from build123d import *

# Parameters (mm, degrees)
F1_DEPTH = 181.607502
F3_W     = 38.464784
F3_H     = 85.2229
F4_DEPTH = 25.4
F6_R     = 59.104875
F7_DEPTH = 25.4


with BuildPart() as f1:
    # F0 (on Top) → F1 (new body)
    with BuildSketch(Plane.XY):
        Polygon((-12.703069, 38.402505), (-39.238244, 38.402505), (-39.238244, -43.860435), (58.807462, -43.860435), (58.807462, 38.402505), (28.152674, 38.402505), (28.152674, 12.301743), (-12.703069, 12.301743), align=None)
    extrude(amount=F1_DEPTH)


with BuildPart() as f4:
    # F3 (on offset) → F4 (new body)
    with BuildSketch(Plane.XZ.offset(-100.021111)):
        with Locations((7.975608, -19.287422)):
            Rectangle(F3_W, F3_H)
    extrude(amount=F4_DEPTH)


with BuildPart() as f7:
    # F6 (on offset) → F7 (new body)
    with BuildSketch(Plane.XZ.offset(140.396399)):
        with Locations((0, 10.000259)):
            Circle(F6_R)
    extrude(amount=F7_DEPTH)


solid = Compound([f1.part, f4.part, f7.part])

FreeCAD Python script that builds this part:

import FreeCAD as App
import Part
import Sketcher
from FreeCAD import Vector
Q = App.Units.Quantity


def add_polygon(sketch, points):
    """Adds a closed chain of lines whose ends are joined by coincident constraints."""
    first, n = sketch.GeometryCount, len(points)
    for a, b in zip(points, points[1:] + points[:1]):
        sketch.addGeometry(Part.LineSegment(App.Vector(*a, 0), App.Vector(*b, 0)), False)
    for i in range(n):
        sketch.addConstraint(Sketcher.Constraint("Coincident", first + i, 2, first + (i + 1) % n, 1))

doc = App.newDocument("Part")
params = doc.addObject("Spreadsheet::Sheet", "Params")
for row, (alias, value) in enumerate([
    ("pad1_length", "181.607502 mm"),
    ("pad2_length", "1 in"),
    ("pad3_length", "1 in"),
], start=1):
    params.set(f"A{row}", alias)
    params.set(f"B{row}", "=" + value)
    params.setAlias(f"B{row}", alias)

body = doc.addObject("PartDesign::Body", "Body")

sketch1 = doc.addObject("Sketcher::SketchObject", "Sketch")
body.addObject(sketch1)
sketch1.AttachmentSupport = (doc.XY_Plane, [""])
sketch1.MapMode = "FlatFace"
add_polygon(sketch1, [(-13, 38), (-39, 38), (-39, -44), (59, -44), (59, 38), (28, 38), (28, 12), (-13, 12)])
sketch1.addConstraint([
    Sketcher.Constraint("Horizontal", 0),
    Sketcher.Constraint("Vertical", 1),
    Sketcher.Constraint("Horizontal", 2),
    Sketcher.Constraint("Vertical", 3),
    Sketcher.Constraint("Horizontal", 4),
    Sketcher.Constraint("Vertical", 5),
    Sketcher.Constraint("Horizontal", 6),
    Sketcher.Constraint("Vertical", 7),
    Sketcher.Constraint("Horizontal", 0, 2, 3, 2),
    Sketcher.Constraint("DistanceX", 4, 2, 4, 1, Q("30.654788 mm")),
    Sketcher.Constraint("DistanceY", 1, 2, 1, 1, Q("82.26294 mm")),
    Sketcher.Constraint("DistanceY", 5, 2, 5, 1, Q("26.100762 mm")),
    Sketcher.Constraint("DistanceX", 0, 2, 0, 1, Q("26.535175 mm")),
    Sketcher.Constraint("DistanceX", 2, 1, 2, 2, Q("98.045706 mm")),
    Sketcher.Constraint("DistanceX", 6, 2, -1, 1, Q("12.703069 mm")),
    Sketcher.Constraint("DistanceY", -1, 1, 0, 2, Q("38.402505 mm")),
])
pad1 = doc.addObject("PartDesign::Pad", "Pad")
body.addObject(pad1)
pad1.Profile = sketch1
pad1.setExpression("Length", "Params.pad1_length")
body2 = doc.addObject("PartDesign::Body", "Body001")

sketch2 = doc.addObject("Sketcher::SketchObject", "Sketch001")
body2.addObject(sketch2)
sketch2.AttachmentSupport = (doc.getObject("XZ_Plane001"), [""])
sketch2.MapMode = "FlatFace"
sketch2.AttachmentOffset = App.Placement(Vector(0, 0, -100.021111), App.Rotation())
add_polygon(sketch2, [(-11, 23), (-11, -62), (27, -62), (27, 23)])
sketch2.addConstraint([
    Sketcher.Constraint("Vertical", 0),
    Sketcher.Constraint("Horizontal", 1),
    Sketcher.Constraint("Vertical", 2),
    Sketcher.Constraint("Horizontal", 3),
    Sketcher.Constraint("DistanceY", 0, 2, 0, 1, Q("85.2229 mm")),
    Sketcher.Constraint("DistanceX", -1, 1, 1, 2, Q("27.208 mm")),
    Sketcher.Constraint("DistanceX", 1, 1, 1, 2, Q("38.464784 mm")),
    Sketcher.Constraint("DistanceY", 0, 2, -1, 1, Q("61.898872 mm")),
])
pad2 = doc.addObject("PartDesign::Pad", "Pad001")
body2.addObject(pad2)
pad2.Profile = sketch2
pad2.setExpression("Length", "Params.pad2_length")
body3 = doc.addObject("PartDesign::Body", "Body002")

sketch3 = doc.addObject("Sketcher::SketchObject", "Sketch002")
body3.addObject(sketch3)
sketch3.AttachmentSupport = (doc.getObject("XZ_Plane002"), [""])
sketch3.MapMode = "FlatFace"
sketch3.AttachmentOffset = App.Placement(Vector(0, 0, 140.396399), App.Rotation())
sketch3.addGeometry(Part.Circle(Vector(0, 10, 0), Vector(0, 0, 1), 59), False)
sketch3.addConstraint([
    Sketcher.Constraint("PointOnObject", 0, 3, -2),
    Sketcher.Constraint("Diameter", 0, Q("118.20975 mm")),
    Sketcher.Constraint("DistanceY", -1, 1, 0, 3, Q("10.000259 mm")),
])
pad3 = doc.addObject("PartDesign::Pad", "Pad002")
body3.addObject(pad3)
pad3.Profile = sketch3
pad3.setExpression("Length", "Params.pad3_length")

doc.recompute()
